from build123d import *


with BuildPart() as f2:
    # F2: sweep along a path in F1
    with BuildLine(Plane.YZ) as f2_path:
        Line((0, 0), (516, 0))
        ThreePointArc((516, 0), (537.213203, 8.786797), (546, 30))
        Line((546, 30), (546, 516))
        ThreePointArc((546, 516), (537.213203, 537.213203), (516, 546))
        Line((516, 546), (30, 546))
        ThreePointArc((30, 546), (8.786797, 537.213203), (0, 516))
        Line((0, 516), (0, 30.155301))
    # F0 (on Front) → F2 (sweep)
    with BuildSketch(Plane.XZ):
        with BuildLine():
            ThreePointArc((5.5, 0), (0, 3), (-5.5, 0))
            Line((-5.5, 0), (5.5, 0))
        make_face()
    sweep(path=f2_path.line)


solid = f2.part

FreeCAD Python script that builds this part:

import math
import FreeCAD as App
import Part
import Sketcher
Q = App.Units.Quantity

doc = App.newDocument("Part")
body = doc.addObject("PartDesign::Body", "Body")

# Sketch on XZ plane
sketch1 = body.newObject("Sketcher::SketchObject", "Sketch")
sketch1.AttachmentSupport = (doc.getObject("XZ_Plane"), [""])
sketch1.MapMode = "FlatFace"
sketch1.addGeometry(Part.ArcOfCircle(Part.Circle(App.Vector(0, -3.541667, 0), App.Vector(0, 0, 1), 6.541667), math.radians(32.779081), math.radians(147.220919)), False)
sketch1.addGeometry(Part.LineSegment(App.Vector(-5.5, 0, 0), App.Vector(5.5, 0, 0)), False)
sketch1.addConstraint(Sketcher.Constraint("Coincident", 0, 1, 1, 2))
sketch1.addConstraint(Sketcher.Constraint("Coincident", 1, 1, 0, 2))
sketch1.addConstraint(Sketcher.Constraint("Horizontal", 1))
sketch1.addConstraint(Sketcher.Constraint("Symmetric", 0, 1, 1, 1, -1, 1))
sketch1.addConstraint(Sketcher.Constraint("DistanceX", 1, 1, 1, 2, Q("11 mm")))
sketch1.addConstraint(Sketcher.Constraint("Radius", 0, Q("6.541667 mm")))

# Sketch on YZ plane
sketch2 = body.newObject("Sketcher::SketchObject", "Sketch001")
sketch2.AttachmentSupport = (doc.getObject("YZ_Plane"), [""])
sketch2.MapMode = "FlatFace"
sketch2.addGeometry(Part.LineSegment(App.Vector(0, 0, 0), App.Vector(516, 0, 0)), False)
sketch2.addGeometry(Part.ArcOfCircle(Part.Circle(App.Vector(515.999999, 30.000001, 0), App.Vector(0, 0, 1), 30.000001), math.radians(-89.999997), math.radians(-0.000003)), False)
sketch2.addGeometry(Part.LineSegment(App.Vector(546, 30, 0), App.Vector(546, 516, 0)), False)
sketch2.addGeometry(Part.ArcOfCircle(Part.Circle(App.Vector(515.999999, 515.999999, 0), App.Vector(0, 0, 1), 30.000001), math.radians(0.000003), math.radians(89.999997)), False)
sketch2.addGeometry(Part.LineSegment(App.Vector(516, 546, 0), App.Vector(30, 546, 0)), False)
sketch2.addGeometry(Part.ArcOfCircle(Part.Circle(App.Vector(30.000001, 515.999999, 0), App.Vector(0, 0, 1), 30.000001), math.radians(90.000003), math.radians(179.999997)), False)
sketch2.addGeometry(Part.LineSegment(App.Vector(0, 516, 0), App.Vector(0, 30.155301, 0)), False)
sketch2.addConstraint(Sketcher.Constraint("Tangent", 0, 2, 1, 1))
sketch2.addConstraint(Sketcher.Constraint("Tangent", 1, 2, 2, 1))
sketch2.addConstraint(Sketcher.Constraint("Tangent", 2, 2, 3, 1))
sketch2.addConstraint(Sketcher.Constraint("Tangent", 3, 2, 4, 1))
sketch2.addConstraint(Sketcher.Constraint("Tangent", 4, 2, 5, 1))
sketch2.addConstraint(Sketcher.Constraint("Tangent", 5, 2, 6, 1))
sketch2.addConstraint(Sketcher.Constraint("Horizontal", 0))
sketch2.addConstraint(Sketcher.Constraint("Vertical", 2))
sketch2.addConstraint(Sketcher.Constraint("Horizontal", 4))
sketch2.addConstraint(Sketcher.Constraint("Vertical", 6))
sketch2.addConstraint(Sketcher.Constraint("Coincident", 0, 1, -1, 1))
sketch2.addConstraint(Sketcher.Constraint("Equal", 1, 3))
sketch2.addConstraint(Sketcher.Constraint("Equal", 3, 5))
sketch2.addConstraint(Sketcher.Constraint("PointOnObject", 5, 2, -2))
sketch2.addConstraint(Sketcher.Constraint("Equal", 4, 2))
sketch2.addConstraint(Sketcher.Constraint("Radius", 1, Q("30.000001 mm")))
sketch2.addConstraint(Sketcher.Constraint("DistanceX", 0, 1, 0, 2, Q("516 mm")))
sketch2.addConstraint(Sketcher.Constraint("DistanceY", 6, 2, 6, 1, Q("485.844699 mm")))
doc.recompute()

additivepipe = body.newObject("PartDesign::AdditivePipe", "AdditivePipe")
additivepipe.Profile = sketch1
additivepipe.Spine = (sketch2, ["Edge1", "Edge2", "Edge3", "Edge4", "Edge5", "Edge6", "Edge7"])

doc.recompute()
